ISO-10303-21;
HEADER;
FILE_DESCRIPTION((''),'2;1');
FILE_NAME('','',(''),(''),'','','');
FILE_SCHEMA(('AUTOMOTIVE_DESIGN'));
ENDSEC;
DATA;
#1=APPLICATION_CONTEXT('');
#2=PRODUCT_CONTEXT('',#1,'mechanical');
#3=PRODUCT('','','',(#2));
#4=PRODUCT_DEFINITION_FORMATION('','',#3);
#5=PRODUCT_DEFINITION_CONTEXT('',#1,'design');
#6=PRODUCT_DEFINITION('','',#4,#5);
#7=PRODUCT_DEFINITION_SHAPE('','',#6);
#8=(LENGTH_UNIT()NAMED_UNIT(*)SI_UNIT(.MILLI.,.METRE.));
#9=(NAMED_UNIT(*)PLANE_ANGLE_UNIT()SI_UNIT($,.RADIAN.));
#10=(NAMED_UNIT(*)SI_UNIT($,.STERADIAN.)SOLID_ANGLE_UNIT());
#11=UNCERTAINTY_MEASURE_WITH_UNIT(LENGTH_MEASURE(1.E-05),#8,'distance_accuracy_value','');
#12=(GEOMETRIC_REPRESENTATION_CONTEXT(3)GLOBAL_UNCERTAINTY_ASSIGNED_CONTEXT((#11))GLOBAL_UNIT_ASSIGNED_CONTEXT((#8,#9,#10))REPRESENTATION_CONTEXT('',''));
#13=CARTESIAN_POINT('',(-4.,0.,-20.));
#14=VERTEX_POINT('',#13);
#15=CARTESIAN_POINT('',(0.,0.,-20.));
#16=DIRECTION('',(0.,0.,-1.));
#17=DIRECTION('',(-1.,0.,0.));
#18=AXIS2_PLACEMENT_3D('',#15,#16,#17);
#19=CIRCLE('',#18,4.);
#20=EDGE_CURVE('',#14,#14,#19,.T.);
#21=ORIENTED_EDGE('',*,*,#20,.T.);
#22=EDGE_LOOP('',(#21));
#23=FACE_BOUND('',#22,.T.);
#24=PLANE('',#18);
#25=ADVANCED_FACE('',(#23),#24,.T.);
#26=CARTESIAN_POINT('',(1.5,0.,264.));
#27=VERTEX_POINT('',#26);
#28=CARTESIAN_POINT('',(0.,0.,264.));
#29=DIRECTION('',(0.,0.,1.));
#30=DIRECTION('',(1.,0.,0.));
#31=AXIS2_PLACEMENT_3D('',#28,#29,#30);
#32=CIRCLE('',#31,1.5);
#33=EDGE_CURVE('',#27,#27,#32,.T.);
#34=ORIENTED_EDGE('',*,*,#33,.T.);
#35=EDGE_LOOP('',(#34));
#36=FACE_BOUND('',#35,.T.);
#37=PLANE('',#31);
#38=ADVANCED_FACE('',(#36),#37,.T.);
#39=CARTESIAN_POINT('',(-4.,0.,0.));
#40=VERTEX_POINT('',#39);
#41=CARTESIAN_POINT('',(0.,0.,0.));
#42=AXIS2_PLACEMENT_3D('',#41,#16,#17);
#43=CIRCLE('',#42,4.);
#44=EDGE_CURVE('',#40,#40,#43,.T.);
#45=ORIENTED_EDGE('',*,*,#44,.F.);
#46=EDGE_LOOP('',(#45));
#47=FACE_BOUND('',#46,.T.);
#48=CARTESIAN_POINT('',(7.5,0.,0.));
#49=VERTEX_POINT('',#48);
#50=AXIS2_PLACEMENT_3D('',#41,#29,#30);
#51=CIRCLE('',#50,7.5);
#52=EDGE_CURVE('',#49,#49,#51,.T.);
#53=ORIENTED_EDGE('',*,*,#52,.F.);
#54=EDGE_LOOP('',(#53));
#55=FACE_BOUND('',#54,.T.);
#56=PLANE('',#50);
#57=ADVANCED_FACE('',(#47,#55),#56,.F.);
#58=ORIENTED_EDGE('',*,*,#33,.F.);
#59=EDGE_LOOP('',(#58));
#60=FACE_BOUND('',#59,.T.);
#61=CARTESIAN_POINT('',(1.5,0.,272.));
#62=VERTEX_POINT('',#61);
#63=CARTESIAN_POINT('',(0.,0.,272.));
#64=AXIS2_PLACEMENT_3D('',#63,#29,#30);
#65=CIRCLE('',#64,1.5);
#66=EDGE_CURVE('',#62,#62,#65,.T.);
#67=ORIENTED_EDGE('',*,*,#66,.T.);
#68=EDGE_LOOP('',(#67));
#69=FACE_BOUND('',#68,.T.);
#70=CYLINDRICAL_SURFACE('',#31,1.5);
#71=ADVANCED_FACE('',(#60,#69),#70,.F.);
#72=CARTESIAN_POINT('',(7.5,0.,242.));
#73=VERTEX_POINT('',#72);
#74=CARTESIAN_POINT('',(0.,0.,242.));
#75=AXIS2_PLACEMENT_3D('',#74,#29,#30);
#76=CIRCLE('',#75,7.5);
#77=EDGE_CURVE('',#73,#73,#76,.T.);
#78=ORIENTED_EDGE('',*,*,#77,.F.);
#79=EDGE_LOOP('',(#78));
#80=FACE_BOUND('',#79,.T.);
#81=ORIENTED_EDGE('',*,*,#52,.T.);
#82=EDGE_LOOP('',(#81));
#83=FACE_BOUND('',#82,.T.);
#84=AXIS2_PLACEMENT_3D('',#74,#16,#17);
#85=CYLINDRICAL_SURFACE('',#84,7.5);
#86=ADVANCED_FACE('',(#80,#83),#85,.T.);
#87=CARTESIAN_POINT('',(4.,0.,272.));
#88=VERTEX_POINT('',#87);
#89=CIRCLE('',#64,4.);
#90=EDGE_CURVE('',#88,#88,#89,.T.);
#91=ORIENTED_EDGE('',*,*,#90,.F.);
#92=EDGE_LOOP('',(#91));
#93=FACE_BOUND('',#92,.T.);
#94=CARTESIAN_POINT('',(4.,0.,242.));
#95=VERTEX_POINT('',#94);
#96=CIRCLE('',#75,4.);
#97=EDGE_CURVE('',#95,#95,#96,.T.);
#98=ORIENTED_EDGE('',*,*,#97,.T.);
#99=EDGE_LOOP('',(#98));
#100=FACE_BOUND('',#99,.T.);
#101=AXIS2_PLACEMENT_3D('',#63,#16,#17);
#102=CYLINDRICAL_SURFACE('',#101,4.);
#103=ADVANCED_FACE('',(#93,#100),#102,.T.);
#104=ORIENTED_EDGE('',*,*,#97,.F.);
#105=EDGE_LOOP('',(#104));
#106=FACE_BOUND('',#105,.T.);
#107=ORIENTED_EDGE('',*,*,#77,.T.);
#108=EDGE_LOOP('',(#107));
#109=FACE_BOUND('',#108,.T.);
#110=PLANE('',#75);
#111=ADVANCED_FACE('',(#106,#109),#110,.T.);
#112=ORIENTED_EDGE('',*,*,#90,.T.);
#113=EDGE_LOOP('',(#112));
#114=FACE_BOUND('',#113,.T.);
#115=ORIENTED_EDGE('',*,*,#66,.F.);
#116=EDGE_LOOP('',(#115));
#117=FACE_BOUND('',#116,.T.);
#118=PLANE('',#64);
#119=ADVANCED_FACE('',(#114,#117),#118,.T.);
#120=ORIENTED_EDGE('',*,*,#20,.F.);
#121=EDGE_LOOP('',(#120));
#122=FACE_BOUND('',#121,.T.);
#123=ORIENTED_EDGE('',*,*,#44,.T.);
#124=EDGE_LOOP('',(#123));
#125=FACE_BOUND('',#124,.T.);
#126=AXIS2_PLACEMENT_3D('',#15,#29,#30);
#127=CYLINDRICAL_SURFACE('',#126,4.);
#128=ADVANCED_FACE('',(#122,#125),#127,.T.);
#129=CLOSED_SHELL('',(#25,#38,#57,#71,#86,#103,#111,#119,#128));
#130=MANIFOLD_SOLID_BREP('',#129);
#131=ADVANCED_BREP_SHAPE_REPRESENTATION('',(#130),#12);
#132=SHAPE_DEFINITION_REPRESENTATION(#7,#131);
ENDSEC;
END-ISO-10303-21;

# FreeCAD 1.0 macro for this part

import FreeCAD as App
import Part
import Sketcher

V = App.Vector

doc = App.newDocument("Part")
params = doc.addObject("Spreadsheet::Sheet", "Params")
for row, (alias, value) in enumerate([
    ("sketch1_diameter", "15 mm"),
    ("pad1_length", "242 mm"),
    ("sketch2_diameter", "8 mm"),
    ("pad2_length", "30 mm"),
    ("sketch3_diameter", "8 mm"),
    ("pad3_length", "20 mm"),
    ("sketch4_diameter", "3 mm"),
    ("pocket1_length", "8 mm"),
], start=1):
    params.set(f"A{row}", alias)
    params.set(f"B{row}", "=" + value)
    params.setAlias(f"B{row}", alias)

body = doc.addObject("PartDesign::Body", "Body")

# Sketch on XY plane
sketch1 = body.newObject("Sketcher::SketchObject", "Sketch")
sketch1.AttachmentSupport = (doc.getObject("XY_Plane"), [""])
sketch1.MapMode = "FlatFace"
sketch1.addGeometry(Part.Circle(V(0, 0, 0), V(0, 0, 1), 7.5), False)
sketch1.addConstraint(Sketcher.Constraint("Coincident", 0, 3, -1, 1))
sketch1.addConstraint(Sketcher.Constraint("Diameter", 0, 15.0))
sketch1.setExpression("Constraints[1]", "Params.sketch1_diameter")
pad1 = body.newObject("PartDesign::Pad", "Pad")
pad1.Profile = sketch1
pad1.setExpression("Length", "Params.pad1_length")

# Sketch on XY plane
sketch2 = body.newObject("Sketcher::SketchObject", "Sketch001")
sketch2.AttachmentSupport = (doc.getObject("XY_Plane"), [""])
sketch2.MapMode = "FlatFace"
sketch2.AttachmentOffset = App.Placement(V(0, 0, 242), App.Rotation())
sketch2.addGeometry(Part.Circle(V(0, 0, 0), V(0, 0, 1), 4), False)
sketch2.addConstraint(Sketcher.Constraint("Coincident", 0, 3, -1, 1))
sketch2.addConstraint(Sketcher.Constraint("Diameter", 0, 8.0))
sketch2.setExpression("Constraints[1]", "Params.sketch2_diameter")
pad2 = body.newObject("PartDesign::Pad", "Pad001")
pad2.Profile = sketch2
pad2.setExpression("Length", "Params.pad2_length")

# Sketch on XY plane
sketch3 = body.newObject("Sketcher::SketchObject", "Sketch002")
sketch3.AttachmentSupport = (doc.getObject("XY_Plane"), [""])
sketch3.MapMode = "FlatFace"
sketch3.addGeometry(Part.Circle(V(0, 0, 0), V(0, 0, 1), 4), False)
sketch3.addConstraint(Sketcher.Constraint("Coincident", 0, 3, -1, 1))
sketch3.addConstraint(Sketcher.Constraint("Diameter", 0, 8.0))
sketch3.setExpression("Constraints[1]", "Params.sketch3_diameter")
pad3 = body.newObject("PartDesign::Pad", "Pad002")
pad3.Profile = sketch3
pad3.setExpression("Length", "Params.pad3_length")
pad3.Reversed = True

# Sketch on XY plane
sketch4 = body.newObject("Sketcher::SketchObject", "Sketch003")
sketch4.AttachmentSupport = (doc.getObject("XY_Plane"), [""])
sketch4.MapMode = "FlatFace"
sketch4.AttachmentOffset = App.Placement(V(0, 0, 272), App.Rotation())
sketch4.addGeometry(Part.Circle(V(0, 0, 0), V(0, 0, 1), 1.5), False)
sketch4.addConstraint(Sketcher.Constraint("Coincident", 0, 3, -1, 1))
sketch4.addConstraint(Sketcher.Constraint("Diameter", 0, 3.0))
sketch4.setExpression("Constraints[1]", "Params.sketch4_diameter")
pocket1 = body.newObject("PartDesign::Pocket", "Pocket")
pocket1.Profile = sketch4
pocket1.setExpression("Length", "Params.pocket1_length")

doc.recompute()
